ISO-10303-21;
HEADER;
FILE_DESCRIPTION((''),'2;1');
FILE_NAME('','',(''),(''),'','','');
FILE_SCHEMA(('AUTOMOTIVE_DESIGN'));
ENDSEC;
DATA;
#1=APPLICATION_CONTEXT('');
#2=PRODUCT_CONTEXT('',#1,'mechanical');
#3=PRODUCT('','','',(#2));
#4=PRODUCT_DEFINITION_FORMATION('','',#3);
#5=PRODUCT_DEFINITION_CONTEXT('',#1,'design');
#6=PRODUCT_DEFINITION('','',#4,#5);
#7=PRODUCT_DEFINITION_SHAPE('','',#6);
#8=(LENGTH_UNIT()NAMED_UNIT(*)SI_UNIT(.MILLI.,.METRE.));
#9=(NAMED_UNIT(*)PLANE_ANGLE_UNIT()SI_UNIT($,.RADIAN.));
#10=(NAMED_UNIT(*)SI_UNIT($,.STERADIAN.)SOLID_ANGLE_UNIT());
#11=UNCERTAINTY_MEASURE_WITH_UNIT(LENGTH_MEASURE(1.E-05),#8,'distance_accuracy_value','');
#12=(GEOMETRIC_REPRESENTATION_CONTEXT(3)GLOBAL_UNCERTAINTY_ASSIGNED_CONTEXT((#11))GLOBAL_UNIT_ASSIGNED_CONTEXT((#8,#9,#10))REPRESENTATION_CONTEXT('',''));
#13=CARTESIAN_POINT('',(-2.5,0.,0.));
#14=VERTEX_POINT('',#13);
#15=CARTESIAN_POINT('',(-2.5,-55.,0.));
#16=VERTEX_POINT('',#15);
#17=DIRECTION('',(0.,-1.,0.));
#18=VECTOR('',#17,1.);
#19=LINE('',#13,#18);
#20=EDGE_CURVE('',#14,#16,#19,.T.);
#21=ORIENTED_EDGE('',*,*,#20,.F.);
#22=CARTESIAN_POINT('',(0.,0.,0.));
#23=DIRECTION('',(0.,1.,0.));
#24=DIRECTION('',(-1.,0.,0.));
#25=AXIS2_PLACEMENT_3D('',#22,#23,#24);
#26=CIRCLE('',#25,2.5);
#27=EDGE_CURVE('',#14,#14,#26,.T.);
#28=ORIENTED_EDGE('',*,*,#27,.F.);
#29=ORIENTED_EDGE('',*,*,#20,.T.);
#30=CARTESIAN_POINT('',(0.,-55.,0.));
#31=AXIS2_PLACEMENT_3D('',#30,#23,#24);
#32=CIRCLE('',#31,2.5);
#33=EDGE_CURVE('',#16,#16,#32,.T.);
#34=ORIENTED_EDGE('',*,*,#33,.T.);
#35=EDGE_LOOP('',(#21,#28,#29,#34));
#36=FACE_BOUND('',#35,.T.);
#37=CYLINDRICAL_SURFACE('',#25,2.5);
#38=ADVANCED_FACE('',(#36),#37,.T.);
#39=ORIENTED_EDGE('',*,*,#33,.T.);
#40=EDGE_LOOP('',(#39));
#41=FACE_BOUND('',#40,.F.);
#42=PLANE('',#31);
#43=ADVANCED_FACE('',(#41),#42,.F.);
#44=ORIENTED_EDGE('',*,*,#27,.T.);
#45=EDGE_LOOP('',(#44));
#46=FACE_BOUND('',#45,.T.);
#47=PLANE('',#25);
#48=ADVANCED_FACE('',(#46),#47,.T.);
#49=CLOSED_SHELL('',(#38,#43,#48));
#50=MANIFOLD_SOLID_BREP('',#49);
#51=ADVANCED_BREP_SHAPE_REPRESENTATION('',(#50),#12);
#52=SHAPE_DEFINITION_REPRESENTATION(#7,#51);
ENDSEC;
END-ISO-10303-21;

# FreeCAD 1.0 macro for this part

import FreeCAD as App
import Part
import Sketcher

V = App.Vector

doc = App.newDocument("Part")
body = doc.addObject("PartDesign::Body", "Body")

# Sketch on XZ plane
sketch1 = body.newObject("Sketcher::SketchObject", "Sketch")
sketch1.AttachmentSupport = (doc.getObject("XZ_Plane"), [""])
sketch1.MapMode = "FlatFace"
sketch1.addGeometry(Part.Circle(V(0, 0, 0), V(0, 0, 1), 2.5), False)
sketch1.addConstraint([
    Sketcher.Constraint("Coincident", 0, 3, -1, 1),
    Sketcher.Constraint("Diameter", 0, 5.0),
])
pad1 = body.newObject("PartDesign::Pad", "Pad")
pad1.Profile = sketch1
pad1.Length = 55

doc.recompute()
